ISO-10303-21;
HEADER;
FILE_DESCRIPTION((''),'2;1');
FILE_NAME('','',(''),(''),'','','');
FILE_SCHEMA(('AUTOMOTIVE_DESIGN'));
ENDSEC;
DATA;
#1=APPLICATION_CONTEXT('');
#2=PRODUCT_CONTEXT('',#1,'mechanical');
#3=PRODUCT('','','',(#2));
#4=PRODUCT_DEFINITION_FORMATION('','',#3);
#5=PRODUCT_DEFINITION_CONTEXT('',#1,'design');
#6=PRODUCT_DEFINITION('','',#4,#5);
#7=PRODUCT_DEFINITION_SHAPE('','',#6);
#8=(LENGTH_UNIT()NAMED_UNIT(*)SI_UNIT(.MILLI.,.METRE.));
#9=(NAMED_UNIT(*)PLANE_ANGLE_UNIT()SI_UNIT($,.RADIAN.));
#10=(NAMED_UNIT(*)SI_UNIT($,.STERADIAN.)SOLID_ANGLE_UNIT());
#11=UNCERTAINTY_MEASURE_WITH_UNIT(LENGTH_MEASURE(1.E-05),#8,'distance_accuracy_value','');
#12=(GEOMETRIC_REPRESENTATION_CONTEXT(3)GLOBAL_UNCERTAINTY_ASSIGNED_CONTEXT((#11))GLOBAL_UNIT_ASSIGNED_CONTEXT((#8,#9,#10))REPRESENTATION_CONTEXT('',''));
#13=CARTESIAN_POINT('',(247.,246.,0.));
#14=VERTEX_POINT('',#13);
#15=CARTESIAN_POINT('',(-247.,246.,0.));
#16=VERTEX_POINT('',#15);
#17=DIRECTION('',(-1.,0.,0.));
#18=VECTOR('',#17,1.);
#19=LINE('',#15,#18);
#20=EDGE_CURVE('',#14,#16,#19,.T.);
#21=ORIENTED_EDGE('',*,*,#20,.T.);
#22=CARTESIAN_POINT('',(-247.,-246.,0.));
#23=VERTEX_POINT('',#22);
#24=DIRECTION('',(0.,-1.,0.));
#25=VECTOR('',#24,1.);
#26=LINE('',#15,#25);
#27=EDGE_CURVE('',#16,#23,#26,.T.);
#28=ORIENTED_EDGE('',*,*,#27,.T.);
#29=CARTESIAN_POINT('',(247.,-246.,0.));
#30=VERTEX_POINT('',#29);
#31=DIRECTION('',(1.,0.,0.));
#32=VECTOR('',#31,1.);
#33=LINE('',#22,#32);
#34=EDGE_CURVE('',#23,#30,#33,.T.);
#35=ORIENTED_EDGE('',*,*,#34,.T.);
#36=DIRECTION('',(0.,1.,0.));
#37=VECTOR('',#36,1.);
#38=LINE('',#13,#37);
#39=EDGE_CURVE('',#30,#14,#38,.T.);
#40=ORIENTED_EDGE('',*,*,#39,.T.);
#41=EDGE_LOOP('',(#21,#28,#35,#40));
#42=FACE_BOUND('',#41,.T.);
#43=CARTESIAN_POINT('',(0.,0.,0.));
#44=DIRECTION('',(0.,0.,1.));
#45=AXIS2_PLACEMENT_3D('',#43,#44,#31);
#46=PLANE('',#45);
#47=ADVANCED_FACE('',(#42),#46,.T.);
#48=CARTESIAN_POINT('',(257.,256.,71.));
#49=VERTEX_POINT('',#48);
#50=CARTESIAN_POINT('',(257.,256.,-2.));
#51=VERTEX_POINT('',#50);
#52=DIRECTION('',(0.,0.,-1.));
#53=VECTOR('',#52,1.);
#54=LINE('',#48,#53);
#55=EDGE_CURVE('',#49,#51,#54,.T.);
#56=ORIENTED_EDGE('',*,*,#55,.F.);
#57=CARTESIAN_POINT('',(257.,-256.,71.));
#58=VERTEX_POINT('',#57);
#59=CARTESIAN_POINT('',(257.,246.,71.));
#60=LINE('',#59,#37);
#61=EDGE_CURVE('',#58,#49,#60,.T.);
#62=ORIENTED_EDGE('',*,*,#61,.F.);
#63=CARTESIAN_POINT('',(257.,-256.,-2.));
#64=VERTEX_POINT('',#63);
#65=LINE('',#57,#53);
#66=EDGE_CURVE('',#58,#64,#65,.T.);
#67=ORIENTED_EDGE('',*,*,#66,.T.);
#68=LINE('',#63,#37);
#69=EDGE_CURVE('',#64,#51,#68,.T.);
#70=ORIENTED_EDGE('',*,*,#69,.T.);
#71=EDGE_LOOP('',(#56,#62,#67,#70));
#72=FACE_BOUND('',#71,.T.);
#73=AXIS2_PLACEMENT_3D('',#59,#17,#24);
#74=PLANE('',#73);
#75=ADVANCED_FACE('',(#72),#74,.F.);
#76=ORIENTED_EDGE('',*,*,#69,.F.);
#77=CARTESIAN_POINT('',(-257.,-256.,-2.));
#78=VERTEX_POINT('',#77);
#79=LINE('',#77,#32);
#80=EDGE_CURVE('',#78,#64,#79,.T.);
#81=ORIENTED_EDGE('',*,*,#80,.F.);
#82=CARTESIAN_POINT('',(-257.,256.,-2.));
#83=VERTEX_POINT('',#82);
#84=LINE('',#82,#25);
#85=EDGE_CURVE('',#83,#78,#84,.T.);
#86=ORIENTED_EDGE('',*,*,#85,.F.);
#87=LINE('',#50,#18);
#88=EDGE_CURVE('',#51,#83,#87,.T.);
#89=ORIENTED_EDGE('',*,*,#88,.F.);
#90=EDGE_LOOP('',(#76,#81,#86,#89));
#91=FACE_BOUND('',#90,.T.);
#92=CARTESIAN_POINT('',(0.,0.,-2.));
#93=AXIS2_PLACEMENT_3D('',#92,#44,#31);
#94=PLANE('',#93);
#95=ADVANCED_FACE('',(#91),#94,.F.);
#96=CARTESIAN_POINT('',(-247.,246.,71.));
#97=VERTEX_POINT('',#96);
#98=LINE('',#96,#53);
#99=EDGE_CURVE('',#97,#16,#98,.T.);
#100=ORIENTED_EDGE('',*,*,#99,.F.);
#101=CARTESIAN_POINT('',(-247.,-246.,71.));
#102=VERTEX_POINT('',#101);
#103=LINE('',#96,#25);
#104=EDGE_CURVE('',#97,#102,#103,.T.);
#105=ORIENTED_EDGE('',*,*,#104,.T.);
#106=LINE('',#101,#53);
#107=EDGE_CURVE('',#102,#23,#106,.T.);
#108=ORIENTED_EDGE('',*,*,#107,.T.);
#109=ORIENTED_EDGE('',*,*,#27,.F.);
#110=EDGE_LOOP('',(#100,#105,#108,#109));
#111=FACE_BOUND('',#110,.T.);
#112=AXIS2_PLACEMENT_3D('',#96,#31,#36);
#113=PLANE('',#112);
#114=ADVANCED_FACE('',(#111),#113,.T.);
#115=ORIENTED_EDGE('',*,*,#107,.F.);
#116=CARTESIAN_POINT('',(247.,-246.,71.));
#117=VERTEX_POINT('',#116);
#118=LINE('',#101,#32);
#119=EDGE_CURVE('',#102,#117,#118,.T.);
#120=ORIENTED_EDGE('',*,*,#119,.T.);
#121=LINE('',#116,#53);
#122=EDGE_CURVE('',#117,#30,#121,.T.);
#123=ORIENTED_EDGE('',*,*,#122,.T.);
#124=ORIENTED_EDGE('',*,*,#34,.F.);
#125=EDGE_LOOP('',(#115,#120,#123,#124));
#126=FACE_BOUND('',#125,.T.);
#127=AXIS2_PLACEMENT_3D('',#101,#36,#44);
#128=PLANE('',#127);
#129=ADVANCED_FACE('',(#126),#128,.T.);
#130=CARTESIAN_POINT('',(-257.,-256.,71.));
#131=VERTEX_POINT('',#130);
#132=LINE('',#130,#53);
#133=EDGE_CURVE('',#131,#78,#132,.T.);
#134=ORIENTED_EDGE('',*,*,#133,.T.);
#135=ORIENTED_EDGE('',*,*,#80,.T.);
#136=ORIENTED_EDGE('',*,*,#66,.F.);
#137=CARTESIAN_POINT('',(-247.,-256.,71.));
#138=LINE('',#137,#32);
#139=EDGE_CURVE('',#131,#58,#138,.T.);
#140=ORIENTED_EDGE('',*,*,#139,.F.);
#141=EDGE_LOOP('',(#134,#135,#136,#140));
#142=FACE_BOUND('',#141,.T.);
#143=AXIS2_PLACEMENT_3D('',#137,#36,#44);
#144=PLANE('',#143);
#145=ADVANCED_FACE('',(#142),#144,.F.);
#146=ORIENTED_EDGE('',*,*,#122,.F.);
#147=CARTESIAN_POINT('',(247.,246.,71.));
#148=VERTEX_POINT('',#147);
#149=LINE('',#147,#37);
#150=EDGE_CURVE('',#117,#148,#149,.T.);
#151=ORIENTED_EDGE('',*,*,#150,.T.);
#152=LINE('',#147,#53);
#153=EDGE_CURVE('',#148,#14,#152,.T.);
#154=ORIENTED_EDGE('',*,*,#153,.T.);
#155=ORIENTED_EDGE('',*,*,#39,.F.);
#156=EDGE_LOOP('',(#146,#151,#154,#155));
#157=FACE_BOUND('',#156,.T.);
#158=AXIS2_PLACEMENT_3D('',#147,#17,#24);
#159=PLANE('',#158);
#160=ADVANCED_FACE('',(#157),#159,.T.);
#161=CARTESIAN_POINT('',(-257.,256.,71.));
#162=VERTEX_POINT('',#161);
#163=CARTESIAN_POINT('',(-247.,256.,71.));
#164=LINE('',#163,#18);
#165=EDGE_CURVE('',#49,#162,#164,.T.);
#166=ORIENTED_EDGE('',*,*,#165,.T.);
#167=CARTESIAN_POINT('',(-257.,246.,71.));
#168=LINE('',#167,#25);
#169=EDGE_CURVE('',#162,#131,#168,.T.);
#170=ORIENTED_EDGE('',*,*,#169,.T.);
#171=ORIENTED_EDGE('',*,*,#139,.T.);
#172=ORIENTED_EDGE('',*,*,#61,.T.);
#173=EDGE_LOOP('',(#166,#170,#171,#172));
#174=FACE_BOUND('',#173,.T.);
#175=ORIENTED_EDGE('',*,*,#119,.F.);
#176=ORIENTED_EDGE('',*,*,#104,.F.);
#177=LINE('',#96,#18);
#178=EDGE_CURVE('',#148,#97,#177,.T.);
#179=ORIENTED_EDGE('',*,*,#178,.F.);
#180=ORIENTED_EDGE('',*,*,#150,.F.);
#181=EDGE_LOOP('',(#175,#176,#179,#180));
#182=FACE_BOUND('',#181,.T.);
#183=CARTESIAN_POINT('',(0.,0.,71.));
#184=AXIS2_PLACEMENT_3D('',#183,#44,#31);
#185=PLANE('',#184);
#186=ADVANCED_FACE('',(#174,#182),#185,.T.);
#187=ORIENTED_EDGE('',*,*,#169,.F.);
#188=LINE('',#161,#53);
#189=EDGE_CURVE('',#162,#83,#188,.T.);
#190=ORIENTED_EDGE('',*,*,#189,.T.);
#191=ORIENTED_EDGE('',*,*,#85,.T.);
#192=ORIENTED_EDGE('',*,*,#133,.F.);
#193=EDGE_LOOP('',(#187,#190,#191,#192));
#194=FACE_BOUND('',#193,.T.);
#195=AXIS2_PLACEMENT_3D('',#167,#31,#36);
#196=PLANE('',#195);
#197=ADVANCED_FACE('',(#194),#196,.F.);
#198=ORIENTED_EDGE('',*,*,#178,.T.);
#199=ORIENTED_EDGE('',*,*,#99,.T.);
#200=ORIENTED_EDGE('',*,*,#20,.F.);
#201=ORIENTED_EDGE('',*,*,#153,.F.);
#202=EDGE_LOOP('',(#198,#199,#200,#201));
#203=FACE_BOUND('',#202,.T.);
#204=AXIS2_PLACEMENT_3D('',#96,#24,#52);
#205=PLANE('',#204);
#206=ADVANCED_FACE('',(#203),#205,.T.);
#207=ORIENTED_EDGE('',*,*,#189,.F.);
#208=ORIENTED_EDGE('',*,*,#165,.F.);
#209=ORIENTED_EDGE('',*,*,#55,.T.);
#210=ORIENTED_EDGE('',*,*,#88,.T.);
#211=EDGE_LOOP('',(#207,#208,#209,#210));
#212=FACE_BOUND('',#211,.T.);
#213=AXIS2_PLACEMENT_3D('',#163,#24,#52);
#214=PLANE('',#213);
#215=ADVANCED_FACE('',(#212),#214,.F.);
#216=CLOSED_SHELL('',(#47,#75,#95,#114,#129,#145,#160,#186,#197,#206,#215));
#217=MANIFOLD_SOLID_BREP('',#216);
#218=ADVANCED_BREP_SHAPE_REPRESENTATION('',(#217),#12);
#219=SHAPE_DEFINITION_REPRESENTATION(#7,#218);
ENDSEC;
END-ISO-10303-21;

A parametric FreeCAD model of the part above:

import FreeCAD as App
import Part
import Sketcher
from FreeCAD import Vector


def add_polygon(sketch, points):
    """Adds a closed chain of lines whose ends are joined by coincident constraints."""
    first, n = sketch.GeometryCount, len(points)
    for a, b in zip(points, points[1:] + points[:1]):
        sketch.addGeometry(Part.LineSegment(App.Vector(*a, 0), App.Vector(*b, 0)), False)
    for i in range(n):
        sketch.addConstraint(Sketcher.Constraint("Coincident", first + i, 2, first + (i + 1) % n, 1))

doc = App.newDocument("Part")
body = doc.addObject("PartDesign::Body", "Body")

# Sketch on XY plane
sketch1 = body.newObject("Sketcher::SketchObject", "Sketch")
sketch1.AttachmentSupport = (doc.getObject("XY_Plane"), [""])
sketch1.MapMode = "FlatFace"
add_polygon(sketch1, [(-257, 256), (-257, -256), (257, -256), (257, 256)])  # lines 0-3
add_polygon(sketch1, [(247, -246), (-247, -246), (-247, 246), (247, 246)])  # lines 4-7
sketch1.addConstraint([
    Sketcher.Constraint("Vertical", 0),
    Sketcher.Constraint("Horizontal", 1),
    Sketcher.Constraint("Vertical", 2),
    Sketcher.Constraint("Horizontal", 3),
    Sketcher.Constraint("Horizontal", 4),
    Sketcher.Constraint("Vertical", 5),
    Sketcher.Constraint("Horizontal", 6),
    Sketcher.Constraint("Vertical", 7),
    Sketcher.Constraint("Symmetric", 0, 2, 2, 2, -1, 1),
    Sketcher.Constraint("Symmetric", 4, 2, 6, 2, -1, 1),
    Sketcher.Constraint("DistanceX", 1, 1, 1, 2, 514.0),
    Sketcher.Constraint("DistanceX", 4, 2, 4, 1, 494.0),
    Sketcher.Constraint("DistanceY", 0, 2, 0, 1, 512.0),
    Sketcher.Constraint("DistanceY", 5, 1, 5, 2, 492.0),
])
pad1 = body.newObject("PartDesign::Pad", "Pad")
pad1.Profile = sketch1
pad1.Length = 71

# Sketch on XY plane
sketch2 = body.newObject("Sketcher::SketchObject", "Sketch001")
sketch2.AttachmentSupport = (doc.getObject("XY_Plane"), [""])
sketch2.MapMode = "FlatFace"
add_polygon(sketch2, [(-257, 256), (-257, -256), (257, -256), (257, 256)])  # lines 0-3
sketch2.addConstraint([
    Sketcher.Constraint("Vertical", 0),
    Sketcher.Constraint("Horizontal", 1),
    Sketcher.Constraint("Vertical", 2),
    Sketcher.Constraint("Horizontal", 3),
    Sketcher.Constraint("Symmetric", 0, 2, 2, 2, -1, 1),
    Sketcher.Constraint("DistanceX", 1, 1, 1, 2, 514.0),
    Sketcher.Constraint("DistanceY", 0, 2, 0, 1, 512.0),
])
pad2 = body.newObject("PartDesign::Pad", "Pad001")
pad2.Profile = sketch2
pad2.Length = 2
pad2.Reversed = True

doc.recompute()
